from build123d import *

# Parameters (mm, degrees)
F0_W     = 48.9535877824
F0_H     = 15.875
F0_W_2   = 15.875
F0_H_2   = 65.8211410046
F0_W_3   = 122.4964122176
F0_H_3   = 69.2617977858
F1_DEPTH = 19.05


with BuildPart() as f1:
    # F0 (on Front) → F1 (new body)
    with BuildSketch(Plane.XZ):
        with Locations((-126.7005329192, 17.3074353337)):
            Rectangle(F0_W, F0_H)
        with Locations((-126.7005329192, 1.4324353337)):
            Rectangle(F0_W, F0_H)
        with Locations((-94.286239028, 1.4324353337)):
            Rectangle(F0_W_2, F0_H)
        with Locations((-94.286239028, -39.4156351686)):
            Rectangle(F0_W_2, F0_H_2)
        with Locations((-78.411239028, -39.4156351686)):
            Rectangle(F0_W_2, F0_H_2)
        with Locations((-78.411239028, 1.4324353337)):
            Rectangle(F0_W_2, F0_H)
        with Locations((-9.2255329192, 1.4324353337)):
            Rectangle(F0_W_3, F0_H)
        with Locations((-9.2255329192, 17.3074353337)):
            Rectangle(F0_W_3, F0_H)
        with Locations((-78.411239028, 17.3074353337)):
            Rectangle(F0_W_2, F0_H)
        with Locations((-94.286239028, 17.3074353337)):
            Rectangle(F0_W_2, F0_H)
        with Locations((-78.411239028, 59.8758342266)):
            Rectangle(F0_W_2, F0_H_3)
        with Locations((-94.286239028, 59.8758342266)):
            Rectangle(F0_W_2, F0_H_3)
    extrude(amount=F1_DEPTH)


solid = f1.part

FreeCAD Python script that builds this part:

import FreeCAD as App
import Part
import Sketcher
Q = App.Units.Quantity

doc = App.newDocument("Part")
params = doc.addObject("Spreadsheet::Sheet", "Params")
for row, (alias, value) in enumerate([
    ("sketch1_width", "1.25 in"),
    ("pad1_length", "0.75 in"),
], start=1):
    params.set(f"A{row}", alias)
    params.set(f"B{row}", "=" + value)
    params.setAlias(f"B{row}", alias)

body = doc.addObject("PartDesign::Body", "Body")

sketch1 = doc.addObject("Sketcher::SketchObject", "Sketch")
body.addObject(sketch1)
sketch1.AttachmentSupport = (doc.XZ_Plane, [""])
sketch1.MapMode = "FlatFace"
sketch1.addGeometry([
    Part.LineSegment(App.Vector(-151.177327, 25.244935, 0), App.Vector(-151.177327, -6.505065, 0)),
    Part.LineSegment(App.Vector(-151.177327, -6.505065, 0), App.Vector(-102.223739, -6.505065, 0)),
    Part.LineSegment(App.Vector(-102.223739, -6.505065, 0), App.Vector(-102.223739, -72.326206, 0)),
    Part.LineSegment(App.Vector(-102.223739, -72.326206, 0), App.Vector(-70.473739, -72.326206, 0)),
    Part.LineSegment(App.Vector(-70.473739, -72.326206, 0), App.Vector(-70.473739, -6.505065, 0)),
    Part.LineSegment(App.Vector(-70.473739, -6.505065, 0), App.Vector(52.022673, -6.505065, 0)),
    Part.LineSegment(App.Vector(52.022673, -6.505065, 0), App.Vector(52.022673, 25.244935, 0)),
    Part.LineSegment(App.Vector(52.022673, 25.244935, 0), App.Vector(-70.473739, 25.244935, 0)),
    Part.LineSegment(App.Vector(-70.473739, 25.244935, 0), App.Vector(-70.473739, 94.506733, 0)),
    Part.LineSegment(App.Vector(-70.473739, 94.506733, 0), App.Vector(-102.223739, 94.506733, 0)),
    Part.LineSegment(App.Vector(-102.223739, 94.506733, 0), App.Vector(-102.223739, 25.244935, 0)),
    Part.LineSegment(App.Vector(-102.223739, 25.244935, 0), App.Vector(-151.177327, 25.244935, 0)),
], False)
sketch1.addConstraint([
    Sketcher.Constraint("Coincident", 0, 2, 1, 1),
    Sketcher.Constraint("Coincident", 1, 2, 2, 1),
    Sketcher.Constraint("Coincident", 2, 2, 3, 1),
    Sketcher.Constraint("Coincident", 3, 2, 4, 1),
    Sketcher.Constraint("Coincident", 4, 2, 5, 1),
    Sketcher.Constraint("Coincident", 5, 2, 6, 1),
    Sketcher.Constraint("Coincident", 6, 2, 7, 1),
    Sketcher.Constraint("Coincident", 7, 2, 8, 1),
    Sketcher.Constraint("Coincident", 8, 2, 9, 1),
    Sketcher.Constraint("Coincident", 9, 2, 10, 1),
    Sketcher.Constraint("Coincident", 10, 2, 11, 1),
    Sketcher.Constraint("Coincident", 11, 2, 0, 1),
    Sketcher.Constraint("Vertical", 0),
    Sketcher.Constraint("Horizontal", 1),
    Sketcher.Constraint("Vertical", 2),
    Sketcher.Constraint("Horizontal", 3),
    Sketcher.Constraint("Vertical", 4),
    Sketcher.Constraint("Horizontal", 5),
    Sketcher.Constraint("Vertical", 6),
    Sketcher.Constraint("Horizontal", 7),
    Sketcher.Constraint("Vertical", 8),
    Sketcher.Constraint("Horizontal", 9),
    Sketcher.Constraint("Vertical", 10),
    Sketcher.Constraint("Horizontal", 11),
    Sketcher.Constraint("Horizontal", 1, 2, 4, 2),
    Sketcher.Constraint("Horizontal", 7, 2, 10, 2),
    Sketcher.Constraint("Vertical", 4, 2, 7, 2),
    Sketcher.Constraint("Vertical", 2, 2, 9, 2),
    Sketcher.Constraint("Equal", 9, 0),
    Sketcher.Constraint("DistanceX", 0, 2, 5, 2, Q("8 in")),
    Sketcher.Constraint("DistanceX", 3, 1, 3, 2, Q("1.25 in")),
    Sketcher.Constraint("DistanceY", 2, 2, 2, 1, 65.821141),
    Sketcher.Constraint("DistanceX", 1, 1, 1, 2, 48.953588),
    Sketcher.Constraint("DistanceY", 8, 1, 8, 2, 69.261798),
    Sketcher.Constraint("DistanceX", 1, 2, -1, 1, 102.223739),
    Sketcher.Constraint("DistanceY", 0, 2, -1, 1, 6.505065),
])
sketch1.setExpression("Constraints[30]", "Params.sketch1_width")
pad1 = doc.addObject("PartDesign::Pad", "Pad")
body.addObject(pad1)
pad1.Profile = sketch1
pad1.setExpression("Length", "Params.pad1_length")

doc.recompute()
